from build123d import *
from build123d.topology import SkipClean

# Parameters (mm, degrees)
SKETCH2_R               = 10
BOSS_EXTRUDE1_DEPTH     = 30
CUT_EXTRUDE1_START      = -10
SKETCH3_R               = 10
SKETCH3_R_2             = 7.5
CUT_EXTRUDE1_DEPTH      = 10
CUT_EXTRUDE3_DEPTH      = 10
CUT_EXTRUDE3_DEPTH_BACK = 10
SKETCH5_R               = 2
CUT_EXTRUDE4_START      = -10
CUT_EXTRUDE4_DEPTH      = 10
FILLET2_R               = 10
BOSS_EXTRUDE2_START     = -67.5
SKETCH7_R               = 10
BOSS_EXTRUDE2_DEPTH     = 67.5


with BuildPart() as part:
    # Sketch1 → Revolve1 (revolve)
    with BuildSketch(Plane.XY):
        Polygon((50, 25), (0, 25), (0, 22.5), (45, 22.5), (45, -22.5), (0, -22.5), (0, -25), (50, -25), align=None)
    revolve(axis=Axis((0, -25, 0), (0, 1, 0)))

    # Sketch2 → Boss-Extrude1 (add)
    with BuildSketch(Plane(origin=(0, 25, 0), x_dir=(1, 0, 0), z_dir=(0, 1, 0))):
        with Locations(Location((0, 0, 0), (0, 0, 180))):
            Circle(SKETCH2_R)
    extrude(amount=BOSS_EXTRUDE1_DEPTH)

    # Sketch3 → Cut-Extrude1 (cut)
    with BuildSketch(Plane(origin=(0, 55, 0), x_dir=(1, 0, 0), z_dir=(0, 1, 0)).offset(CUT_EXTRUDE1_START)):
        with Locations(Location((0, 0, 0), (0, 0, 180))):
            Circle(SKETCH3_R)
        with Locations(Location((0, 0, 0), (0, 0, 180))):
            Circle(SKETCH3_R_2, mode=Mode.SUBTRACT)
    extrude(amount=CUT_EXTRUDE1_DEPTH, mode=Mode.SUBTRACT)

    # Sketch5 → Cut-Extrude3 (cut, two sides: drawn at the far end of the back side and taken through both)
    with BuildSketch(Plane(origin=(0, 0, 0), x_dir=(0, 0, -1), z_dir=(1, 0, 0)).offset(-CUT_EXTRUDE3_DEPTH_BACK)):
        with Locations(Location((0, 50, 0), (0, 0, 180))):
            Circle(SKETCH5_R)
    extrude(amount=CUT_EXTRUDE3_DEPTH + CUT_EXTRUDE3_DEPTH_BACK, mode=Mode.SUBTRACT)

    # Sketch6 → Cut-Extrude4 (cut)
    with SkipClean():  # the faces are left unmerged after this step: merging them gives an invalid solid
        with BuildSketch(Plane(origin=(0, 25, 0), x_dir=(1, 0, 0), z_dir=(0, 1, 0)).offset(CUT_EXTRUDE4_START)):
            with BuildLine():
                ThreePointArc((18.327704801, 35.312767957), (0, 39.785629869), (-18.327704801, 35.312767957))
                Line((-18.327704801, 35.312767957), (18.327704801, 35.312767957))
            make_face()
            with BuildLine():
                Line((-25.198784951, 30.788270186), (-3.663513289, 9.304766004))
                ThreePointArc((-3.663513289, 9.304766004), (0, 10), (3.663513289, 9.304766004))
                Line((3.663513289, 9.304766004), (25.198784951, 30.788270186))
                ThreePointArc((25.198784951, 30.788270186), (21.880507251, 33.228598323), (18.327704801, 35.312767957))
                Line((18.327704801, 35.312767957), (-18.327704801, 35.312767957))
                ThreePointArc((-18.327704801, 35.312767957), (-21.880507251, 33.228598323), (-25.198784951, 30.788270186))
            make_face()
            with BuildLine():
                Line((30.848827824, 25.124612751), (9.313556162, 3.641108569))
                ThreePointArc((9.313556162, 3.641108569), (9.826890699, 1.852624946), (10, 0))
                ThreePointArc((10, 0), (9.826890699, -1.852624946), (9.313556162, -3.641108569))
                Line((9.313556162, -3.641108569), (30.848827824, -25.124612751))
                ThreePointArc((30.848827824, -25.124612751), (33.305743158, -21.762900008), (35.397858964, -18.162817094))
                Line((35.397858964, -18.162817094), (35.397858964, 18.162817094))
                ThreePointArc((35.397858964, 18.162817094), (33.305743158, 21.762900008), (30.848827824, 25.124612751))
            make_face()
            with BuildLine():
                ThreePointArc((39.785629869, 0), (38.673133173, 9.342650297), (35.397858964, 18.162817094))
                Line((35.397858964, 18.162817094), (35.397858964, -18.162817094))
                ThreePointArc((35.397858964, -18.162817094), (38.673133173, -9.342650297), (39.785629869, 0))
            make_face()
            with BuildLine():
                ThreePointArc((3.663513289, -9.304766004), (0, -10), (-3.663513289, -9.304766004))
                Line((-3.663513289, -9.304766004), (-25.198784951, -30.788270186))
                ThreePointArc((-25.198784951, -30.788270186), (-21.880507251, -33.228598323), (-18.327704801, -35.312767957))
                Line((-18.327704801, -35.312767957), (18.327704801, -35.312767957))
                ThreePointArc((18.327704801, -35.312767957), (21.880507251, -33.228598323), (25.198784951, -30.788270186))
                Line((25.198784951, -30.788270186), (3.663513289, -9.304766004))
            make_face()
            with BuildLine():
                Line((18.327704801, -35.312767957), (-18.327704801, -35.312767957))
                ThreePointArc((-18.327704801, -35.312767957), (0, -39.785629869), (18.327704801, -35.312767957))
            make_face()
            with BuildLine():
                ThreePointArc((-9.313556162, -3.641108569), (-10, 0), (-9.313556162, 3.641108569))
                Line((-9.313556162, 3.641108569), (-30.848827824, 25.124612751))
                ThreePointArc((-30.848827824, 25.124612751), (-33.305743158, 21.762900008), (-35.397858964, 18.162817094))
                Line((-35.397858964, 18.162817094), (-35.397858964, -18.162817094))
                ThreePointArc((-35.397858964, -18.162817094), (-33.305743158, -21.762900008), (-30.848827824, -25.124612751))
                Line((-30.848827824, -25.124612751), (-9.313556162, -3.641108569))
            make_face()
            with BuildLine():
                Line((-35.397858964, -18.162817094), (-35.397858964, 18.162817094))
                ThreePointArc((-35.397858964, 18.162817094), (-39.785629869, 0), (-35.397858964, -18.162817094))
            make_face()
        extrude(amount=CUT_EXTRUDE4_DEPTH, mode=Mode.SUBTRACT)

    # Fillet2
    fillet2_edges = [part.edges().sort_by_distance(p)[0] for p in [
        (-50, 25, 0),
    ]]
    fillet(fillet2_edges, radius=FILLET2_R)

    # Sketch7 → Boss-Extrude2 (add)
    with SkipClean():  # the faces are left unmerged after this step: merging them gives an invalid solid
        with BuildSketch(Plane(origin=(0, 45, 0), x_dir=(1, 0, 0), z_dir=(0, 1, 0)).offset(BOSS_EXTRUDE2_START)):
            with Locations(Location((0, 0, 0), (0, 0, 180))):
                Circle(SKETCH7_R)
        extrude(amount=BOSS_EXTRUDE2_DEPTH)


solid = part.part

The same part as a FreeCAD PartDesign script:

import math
import FreeCAD as App
import Part
import Sketcher
from FreeCAD import Vector
Q = App.Units.Quantity


def edges_at(feature, points):
    """Names of the edges that pass closest to the given points."""
    edges = feature.Shape.Edges
    near = lambda p: min(range(len(edges)), key=lambda i: edges[i].distToShape(Part.Vertex(*p))[0])
    return sorted({f"Edge{near(p) + 1}" for p in points})

doc = App.newDocument("Part")
body = doc.addObject("PartDesign::Body", "Body")

# Sketch on XY plane
sketch1 = doc.addObject("Sketcher::SketchObject", "Sketch")
body.addObject(sketch1)
sketch1.AttachmentSupport = (doc.XY_Plane, [""])
sketch1.MapMode = "FlatFace"
sketch1.addGeometry(Part.LineSegment(Vector(50, 25, 0), Vector(0, 25, 0)), False)
sketch1.addGeometry(Part.LineSegment(Vector(0, 25, 0), Vector(0, 22.5, 0)), False)
sketch1.addGeometry(Part.LineSegment(Vector(0, 22.5, 0), Vector(45, 22.5, 0)), False)
sketch1.addGeometry(Part.LineSegment(Vector(45, 22.5, 0), Vector(45, -22.5, 0)), False)
sketch1.addGeometry(Part.LineSegment(Vector(45, -22.5, 0), Vector(0, -22.5, 0)), False)
sketch1.addGeometry(Part.LineSegment(Vector(0, -22.5, 0), Vector(0, -25, 0)), False)
sketch1.addGeometry(Part.LineSegment(Vector(0, -25, 0), Vector(50, -25, 0)), False)
sketch1.addGeometry(Part.LineSegment(Vector(50, -25, 0), Vector(50, 25, 0)), False)
sketch1.addConstraint(Sketcher.Constraint("Coincident", 0, 2, 1, 1))
sketch1.addConstraint(Sketcher.Constraint("Coincident", 1, 2, 2, 1))
sketch1.addConstraint(Sketcher.Constraint("Coincident", 2, 2, 3, 1))
sketch1.addConstraint(Sketcher.Constraint("Coincident", 3, 2, 4, 1))
sketch1.addConstraint(Sketcher.Constraint("Coincident", 4, 2, 5, 1))
sketch1.addConstraint(Sketcher.Constraint("Coincident", 5, 2, 6, 1))
sketch1.addConstraint(Sketcher.Constraint("Coincident", 6, 2, 7, 1))
sketch1.addConstraint(Sketcher.Constraint("Coincident", 7, 2, 0, 1))
sketch1.addConstraint(Sketcher.Constraint("Horizontal", 0))
sketch1.addConstraint(Sketcher.Constraint("Vertical", 1))
sketch1.addConstraint(Sketcher.Constraint("Horizontal", 2))
sketch1.addConstraint(Sketcher.Constraint("Vertical", 3))
sketch1.addConstraint(Sketcher.Constraint("Horizontal", 4))
sketch1.addConstraint(Sketcher.Constraint("Vertical", 5))
sketch1.addConstraint(Sketcher.Constraint("Horizontal", 6))
sketch1.addConstraint(Sketcher.Constraint("Vertical", 7))
sketch1.addConstraint(Sketcher.Constraint("Symmetric", 1, 2, 4, 2, -1, 1))
sketch1.addConstraint(Sketcher.Constraint("Symmetric", 0, 2, 5, 2, -1))
sketch1.addConstraint(Sketcher.Constraint("Equal", 4, 3))
sketch1.addConstraint(Sketcher.Constraint("Equal", 6, 7))
sketch1.addConstraint(Sketcher.Constraint("DistanceX", 0, 2, 0, 1, Q("50 mm")))
sketch1.addConstraint(Sketcher.Constraint("DistanceX", 2, 1, 2, 2, Q("45 mm")))
revolution = doc.addObject("PartDesign::Revolution", "Revolution")
body.addObject(revolution)
revolution.Profile = sketch1
revolution.ReferenceAxis = (sketch1, ["V_Axis"])
revolution.Angle = 360

# Sketch on XZ plane
sketch2 = doc.addObject("Sketcher::SketchObject", "Sketch001")
body.addObject(sketch2)
sketch2.AttachmentSupport = (doc.XZ_Plane, [""])
sketch2.MapMode = "FlatFace"
sketch2.AttachmentOffset = App.Placement(Vector(0, 0, -25), App.Rotation())
sketch2.addGeometry(Part.Circle(Vector(0, 0, 0), Vector(0, 0, 1), 10), False)
sketch2.addConstraint(Sketcher.Constraint("Coincident", 0, 3, -1, 1))
sketch2.addConstraint(Sketcher.Constraint("Diameter", 0, Q("20 mm")))
pad1 = doc.addObject("PartDesign::Pad", "Pad")
body.addObject(pad1)
pad1.Profile = sketch2
pad1.Length = 30
pad1.Reversed = True

# Sketch on XZ plane
sketch3 = doc.addObject("Sketcher::SketchObject", "Sketch002")
body.addObject(sketch3)
sketch3.AttachmentSupport = (doc.XZ_Plane, [""])
sketch3.MapMode = "FlatFace"
sketch3.AttachmentOffset = App.Placement(Vector(0, 0, -45), App.Rotation())
sketch3.addGeometry(Part.Circle(Vector(0, 0, 0), Vector(0, 0, 1), 10), False)
sketch3.addGeometry(Part.Circle(Vector(0, 0, 0), Vector(0, 0, 1), 7.5), False)
sketch3.addConstraint(Sketcher.Constraint("Coincident", 0, 3, -1, 1))
sketch3.addConstraint(Sketcher.Constraint("Coincident", 1, 3, -1, 1))
sketch3.addConstraint(Sketcher.Constraint("Diameter", 0, Q("20 mm")))
sketch3.addConstraint(Sketcher.Constraint("Diameter", 1, Q("15 mm")))
pocket1 = doc.addObject("PartDesign::Pocket", "Pocket")
body.addObject(pocket1)
pocket1.Profile = sketch3
pocket1.Length = 10

# Sketch on YZ plane
sketch4 = doc.addObject("Sketcher::SketchObject", "Sketch003")
body.addObject(sketch4)
sketch4.AttachmentSupport = (doc.YZ_Plane, [""])
sketch4.MapMode = "FlatFace"
sketch4.addGeometry(Part.Circle(Vector(50, 0, 0), Vector(0, 0, 1), 2), False)
sketch4.addConstraint(Sketcher.Constraint("PointOnObject", 0, 3, -1))
sketch4.addConstraint(Sketcher.Constraint("Diameter", 0, Q("4 mm")))
sketch4.addConstraint(Sketcher.Constraint("DistanceX", -1, 1, 0, 3, Q("50 mm")))
pocket2 = doc.addObject("PartDesign::Pocket", "Pocket001")
body.addObject(pocket2)
pocket2.Profile = sketch4
pocket2.Type = "ThroughAll"
pocket2.Midplane = True

# Sketch on XZ plane
sketch5 = doc.addObject("Sketcher::SketchObject", "Sketch004")
body.addObject(sketch5)
sketch5.AttachmentSupport = (doc.XZ_Plane, [""])
sketch5.MapMode = "FlatFace"
sketch5.AttachmentOffset = App.Placement(Vector(0, 0, -15), App.Rotation())
sketch5.addGeometry(Part.ArcOfCircle(Part.Circle(Vector(0, 0, 0), Vector(0, 0, 1), 39.78563), math.radians(-117.429796), math.radians(-62.570204)), False)
sketch5.addGeometry(Part.LineSegment(Vector(-18.327705, -35.312768, 0), Vector(18.327705, -35.312768, 0)), False)
sketch5.addGeometry(Part.LineSegment(Vector(-25.198785, -30.78827, 0), Vector(-3.663513, -9.304766, 0)), False)
sketch5.addGeometry(Part.ArcOfCircle(Part.Circle(Vector(0, 0, 0), Vector(0, 0, 1), 10), math.radians(-111.490769), math.radians(-68.509231)), False)
sketch5.addGeometry(Part.LineSegment(Vector(3.663513, -9.304766, 0), Vector(25.198785, -30.78827, 0)), False)
sketch5.addGeometry(Part.ArcOfCircle(Part.Circle(Vector(0, 0, 0), Vector(0, 0, 1), 39.78563), math.radians(-62.570204), math.radians(-50.701251)), False)
sketch5.addGeometry(Part.LineSegment(Vector(18.327705, -35.312768, 0), Vector(-18.327705, -35.312768, 0)), False)
sketch5.addGeometry(Part.ArcOfCircle(Part.Circle(Vector(0, 0, 0), Vector(0, 0, 1), 39.78563), math.radians(-129.298749), math.radians(-117.429796)), False)
sketch5.addGeometry(Part.LineSegment(Vector(30.848828, -25.124613, 0), Vector(9.313556, -3.641109, 0)), False)
sketch5.addGeometry(Part.ArcOfCircle(Part.Circle(Vector(0, 0, 0), Vector(0, 0, 1), 10), math.radians(-21.352874), math.radians(0)), False)
sketch5.addGeometry(Part.ArcOfCircle(Part.Circle(Vector(0, 0, 0), Vector(0, 0, 1), 10), math.radians(0), math.radians(21.352874)), False)
sketch5.addGeometry(Part.LineSegment(Vector(9.313556, 3.641109, 0), Vector(30.848828, 25.124613, 0)), False)
sketch5.addGeometry(Part.ArcOfCircle(Part.Circle(Vector(0, 0, 0), Vector(0, 0, 1), 39.78563), math.radians(27.162584), math.radians(39.160854)), False)
sketch5.addGeometry(Part.LineSegment(Vector(35.397859, 18.162817, 0), Vector(35.397859, -18.162817, 0)), False)
sketch5.addGeometry(Part.ArcOfCircle(Part.Circle(Vector(0, 0, 0), Vector(0, 0, 1), 39.78563), math.radians(-39.160854), math.radians(-27.162584)), False)
sketch5.addGeometry(Part.ArcOfCircle(Part.Circle(Vector(0, 0, 0), Vector(0, 0, 1), 39.78563), math.radians(-27.162584), math.radians(0)), False)
sketch5.addGeometry(Part.LineSegment(Vector(35.397859, -18.162817, 0), Vector(35.397859, 18.162817, 0)), False)
sketch5.addGeometry(Part.ArcOfCircle(Part.Circle(Vector(0, 0, 0), Vector(0, 0, 1), 39.78563), math.radians(0), math.radians(27.162584)), False)
sketch5.addGeometry(Part.ArcOfCircle(Part.Circle(Vector(0, 0, 0), Vector(0, 0, 1), 10), math.radians(68.509231), math.radians(111.490769)), False)
sketch5.addGeometry(Part.LineSegment(Vector(-3.663513, 9.304766, 0), Vector(-25.198785, 30.78827, 0)), False)
sketch5.addGeometry(Part.ArcOfCircle(Part.Circle(Vector(0, 0, 0), Vector(0, 0, 1), 39.78563), math.radians(117.429796), math.radians(129.298749)), False)
sketch5.addGeometry(Part.LineSegment(Vector(-18.327705, 35.312768, 0), Vector(18.327705, 35.312768, 0)), False)
sketch5.addGeometry(Part.ArcOfCircle(Part.Circle(Vector(0, 0, 0), Vector(0, 0, 1), 39.78563), math.radians(50.701251), math.radians(62.570204)), False)
sketch5.addGeometry(Part.LineSegment(Vector(25.198785, 30.78827, 0), Vector(3.663513, 9.304766, 0)), False)
sketch5.addGeometry(Part.LineSegment(Vector(18.327705, 35.312768, 0), Vector(-18.327705, 35.312768, 0)), False)
sketch5.addGeometry(Part.ArcOfCircle(Part.Circle(Vector(0, 0, 0), Vector(0, 0, 1), 39.78563), math.radians(62.570204), math.radians(117.429796)), False)
sketch5.addGeometry(Part.ArcOfCircle(Part.Circle(Vector(0, 0, 0), Vector(0, 0, 1), 10), math.radians(158.647126), math.radians(201.352874)), False)
sketch5.addGeometry(Part.LineSegment(Vector(-9.313556, -3.641109, 0), Vector(-30.848828, -25.124613, 0)), False)
sketch5.addGeometry(Part.ArcOfCircle(Part.Circle(Vector(0, 0, 0), Vector(0, 0, 1), 39.78563), math.radians(-152.837416), math.radians(-140.839146)), False)
sketch5.addGeometry(Part.LineSegment(Vector(-35.397859, -18.162817, 0), Vector(-35.397859, 18.162817, 0)), False)
sketch5.addGeometry(Part.ArcOfCircle(Part.Circle(Vector(0, 0, 0), Vector(0, 0, 1), 39.78563), math.radians(140.839146), math.radians(152.837416)), False)
sketch5.addGeometry(Part.LineSegment(Vector(-30.848828, 25.124613, 0), Vector(-9.313556, 3.641109, 0)), False)
sketch5.addGeometry(Part.LineSegment(Vector(-35.397859, 18.162817, 0), Vector(-35.397859, -18.162817, 0)), False)
sketch5.addGeometry(Part.ArcOfCircle(Part.Circle(Vector(0, 0, 0), Vector(0, 0, 1), 39.78563), math.radians(152.837416), math.radians(207.162584)), False)
sketch5.addConstraint(Sketcher.Constraint("Coincident", 0, 1, 1, 1))
sketch5.addConstraint(Sketcher.Constraint("Coincident", 1, 2, 0, 2))
sketch5.addConstraint(Sketcher.Constraint("Coincident", 2, 2, 3, 1))
sketch5.addConstraint(Sketcher.Constraint("Coincident", 3, 2, 4, 1))
sketch5.addConstraint(Sketcher.Constraint("Coincident", 4, 2, 5, 2))
sketch5.addConstraint(Sketcher.Constraint("Coincident", 5, 1, 6, 1))
sketch5.addConstraint(Sketcher.Constraint("Coincident", 6, 2, 7, 2))
sketch5.addConstraint(Sketcher.Constraint("Coincident", 7, 1, 2, 1))
sketch5.addConstraint(Sketcher.Constraint("Coincident", 8, 2, 9, 1))
sketch5.addConstraint(Sketcher.Constraint("Tangent", 9, 2, 10, 1))
sketch5.addConstraint(Sketcher.Constraint("Coincident", 10, 2, 11, 1))
sketch5.addConstraint(Sketcher.Constraint("Coincident", 11, 2, 12, 2))
sketch5.addConstraint(Sketcher.Constraint("Coincident", 12, 1, 13, 1))
sketch5.addConstraint(Sketcher.Constraint("Coincident", 13, 2, 14, 2))
sketch5.addConstraint(Sketcher.Constraint("Coincident", 14, 1, 8, 1))
sketch5.addConstraint(Sketcher.Constraint("Coincident", 15, 1, 16, 1))
sketch5.addConstraint(Sketcher.Constraint("Coincident", 16, 2, 17, 2))
sketch5.addConstraint(Sketcher.Constraint("Tangent", 17, 1, 15, 2))
sketch5.addConstraint(Sketcher.Constraint("Coincident", 18, 2, 19, 1))
sketch5.addConstraint(Sketcher.Constraint("Coincident", 19, 2, 20, 2))
sketch5.addConstraint(Sketcher.Constraint("Coincident", 20, 1, 21, 1))
sketch5.addConstraint(Sketcher.Constraint("Coincident", 21, 2, 22, 2))
sketch5.addConstraint(Sketcher.Constraint("Coincident", 22, 1, 23, 1))
sketch5.addConstraint(Sketcher.Constraint("Coincident", 23, 2, 18, 1))
sketch5.addConstraint(Sketcher.Constraint("Coincident", 24, 1, 25, 1))
sketch5.addConstraint(Sketcher.Constraint("Coincident", 25, 2, 24, 2))
sketch5.addConstraint(Sketcher.Constraint("Coincident", 26, 2, 27, 1))
sketch5.addConstraint(Sketcher.Constraint("Coincident", 27, 2, 28, 2))
sketch5.addConstraint(Sketcher.Constraint("Coincident", 28, 1, 29, 1))
sketch5.addConstraint(Sketcher.Constraint("Coincident", 29, 2, 30, 2))
sketch5.addConstraint(Sketcher.Constraint("Coincident", 30, 1, 31, 1))
sketch5.addConstraint(Sketcher.Constraint("Coincident", 31, 2, 26, 1))
sketch5.addConstraint(Sketcher.Constraint("Coincident", 32, 1, 33, 1))
sketch5.addConstraint(Sketcher.Constraint("Coincident", 33, 2, 32, 2))
sketch5.addConstraint(Sketcher.Constraint("Horizontal", 1))
sketch5.addConstraint(Sketcher.Constraint("Horizontal", 6))
sketch5.addConstraint(Sketcher.Constraint("Vertical", 13))
sketch5.addConstraint(Sketcher.Constraint("Vertical", 16))
sketch5.addConstraint(Sketcher.Constraint("Horizontal", 21))
sketch5.addConstraint(Sketcher.Constraint("Horizontal", 24))
sketch5.addConstraint(Sketcher.Constraint("Vertical", 29))
sketch5.addConstraint(Sketcher.Constraint("Vertical", 32))
sketch5.addConstraint(Sketcher.Constraint("Coincident", 0, 3, -1, 1))
sketch5.addConstraint(Sketcher.Constraint("Coincident", 3, 3, -1, 1))
sketch5.addConstraint(Sketcher.Constraint("Coincident", 5, 3, -1, 1))
sketch5.addConstraint(Sketcher.Constraint("Coincident", 7, 3, -1, 1))
sketch5.addConstraint(Sketcher.Constraint("Coincident", 9, 3, -1, 1))
sketch5.addConstraint(Sketcher.Constraint("Coincident", 12, 3, -1, 1))
sketch5.addConstraint(Sketcher.Constraint("Coincident", 14, 3, -1, 1))
sketch5.addConstraint(Sketcher.Constraint("Coincident", 15, 3, -1, 1))
sketch5.addConstraint(Sketcher.Constraint("Coincident", 18, 3, -1, 1))
sketch5.addConstraint(Sketcher.Constraint("Coincident", 20, 3, -1, 1))
sketch5.addConstraint(Sketcher.Constraint("Coincident", 22, 3, -1, 1))
sketch5.addConstraint(Sketcher.Constraint("Coincident", 25, 3, -1, 1))
sketch5.addConstraint(Sketcher.Constraint("Coincident", 26, 3, -1, 1))
sketch5.addConstraint(Sketcher.Constraint("Coincident", 28, 3, -1, 1))
sketch5.addConstraint(Sketcher.Constraint("Coincident", 30, 3, -1, 1))
sketch5.addConstraint(Sketcher.Constraint("Coincident", 33, 3, -1, 1))
sketch5.addConstraint(Sketcher.Constraint("Coincident", 5, 1, 1, 2))
sketch5.addConstraint(Sketcher.Constraint("Coincident", 15, 1, 13, 2))
sketch5.addConstraint(Sketcher.Constraint("Coincident", 24, 1, 21, 2))
sketch5.addConstraint(Sketcher.Constraint("Coincident", 32, 1, 29, 2))
sketch5.addConstraint(Sketcher.Constraint("Equal", 5, 7))
sketch5.addConstraint(Sketcher.Constraint("Equal", 3, 9))
sketch5.addConstraint(Sketcher.Constraint("Equal", 9, 10))
sketch5.addConstraint(Sketcher.Constraint("Equal", 7, 12))
sketch5.addConstraint(Sketcher.Constraint("Equal", 12, 14))
sketch5.addConstraint(Sketcher.Constraint("Equal", 15, 17))
sketch5.addConstraint(Sketcher.Constraint("Equal", 10, 18))
sketch5.addConstraint(Sketcher.Constraint("Equal", 17, 20))
sketch5.addConstraint(Sketcher.Constraint("Equal", 20, 22))
sketch5.addConstraint(Sketcher.Constraint("Equal", 18, 26))
sketch5.addConstraint(Sketcher.Constraint("Equal", 25, 28))
sketch5.addConstraint(Sketcher.Constraint("Equal", 28, 30))
sketch5.addConstraint(Sketcher.Constraint("PointOnObject", 9, 2, -1))
sketch5.addConstraint(Sketcher.Constraint("PointOnObject", 17, 1, -1))
sketch5.addConstraint(Sketcher.Constraint("Parallel", 4, 8))
sketch5.addConstraint(Sketcher.Constraint("Parallel", 2, 11))
sketch5.addConstraint(Sketcher.Constraint("Parallel", 8, 19))
sketch5.addConstraint(Sketcher.Constraint("Parallel", 11, 23))
sketch5.addConstraint(Sketcher.Constraint("Parallel", 23, 27))
sketch5.addConstraint(Sketcher.Constraint("Parallel", 19, 31))
sketch5.addConstraint(Sketcher.Constraint("Horizontal", 2, 2, 3, 2))
sketch5.addConstraint(Sketcher.Constraint("Horizontal", 4, 2, 7, 1))
sketch5.addConstraint(Sketcher.Constraint("Horizontal", 19, 2, 22, 1))
sketch5.addConstraint(Sketcher.Constraint("Horizontal", 8, 2, 26, 2))
sketch5.addConstraint(Sketcher.Constraint("Horizontal", 15, 1, 28, 1))
sketch5.addConstraint(Sketcher.Constraint("Horizontal", 11, 2, 30, 1))
sketch5.addConstraint(Sketcher.Constraint("Vertical", 8, 2, 10, 2))
sketch5.addConstraint(Sketcher.Constraint("Vertical", 2, 2, 18, 2))
sketch5.addConstraint(Sketcher.Constraint("Vertical", 6, 2, 20, 1))
sketch5.addConstraint(Sketcher.Constraint("Equal", 4, 8))
sketch5.addConstraint(Sketcher.Constraint("Radius", 3, Q("10 mm")))
sketch5.addConstraint(Sketcher.Constraint("Radius", 0, Q("39.78563 mm")))
sketch5.addConstraint(Sketcher.Constraint("DistanceY", 5, 1, 3, 2, Q("26.008002 mm")))
sketch5.addConstraint(Sketcher.Constraint("DistanceX", 1, 1, 1, 2, Q("36.65541 mm")))
sketch5.addConstraint(Sketcher.Constraint("DistanceX", 2, 2, 4, 2, Q("28.862298 mm")))
sketch5.addConstraint(Sketcher.Constraint("DistanceY", 13, 2, 13, 1, Q("36.325634 mm")))
pocket3 = doc.addObject("PartDesign::Pocket", "Pocket002")
body.addObject(pocket3)
pocket3.Profile = sketch5
pocket3.Length = 10
doc.recompute()

fillet = doc.addObject("PartDesign::Fillet", "Fillet")
body.addObject(fillet)
fillet.Base = (pocket3, edges_at(pocket3, [(-50, 25, 0)]))
fillet.Radius = 10

# Sketch on XZ plane
sketch6 = doc.addObject("Sketcher::SketchObject", "Sketch005")
body.addObject(sketch6)
sketch6.AttachmentSupport = (doc.XZ_Plane, [""])
sketch6.MapMode = "FlatFace"
sketch6.AttachmentOffset = App.Placement(Vector(0, 0, 22.5), App.Rotation())
sketch6.addGeometry(Part.Circle(Vector(0, 0, 0), Vector(0, 0, 1), 10), False)
sketch6.addConstraint(Sketcher.Constraint("Coincident", 0, 3, -1, 1))
sketch6.addConstraint(Sketcher.Constraint("Diameter", 0, Q("20 mm")))
pad2 = doc.addObject("PartDesign::Pad", "Pad001")
body.addObject(pad2)
pad2.Profile = sketch6
pad2.Length = 67.5
pad2.Reversed = True

doc.recompute()
